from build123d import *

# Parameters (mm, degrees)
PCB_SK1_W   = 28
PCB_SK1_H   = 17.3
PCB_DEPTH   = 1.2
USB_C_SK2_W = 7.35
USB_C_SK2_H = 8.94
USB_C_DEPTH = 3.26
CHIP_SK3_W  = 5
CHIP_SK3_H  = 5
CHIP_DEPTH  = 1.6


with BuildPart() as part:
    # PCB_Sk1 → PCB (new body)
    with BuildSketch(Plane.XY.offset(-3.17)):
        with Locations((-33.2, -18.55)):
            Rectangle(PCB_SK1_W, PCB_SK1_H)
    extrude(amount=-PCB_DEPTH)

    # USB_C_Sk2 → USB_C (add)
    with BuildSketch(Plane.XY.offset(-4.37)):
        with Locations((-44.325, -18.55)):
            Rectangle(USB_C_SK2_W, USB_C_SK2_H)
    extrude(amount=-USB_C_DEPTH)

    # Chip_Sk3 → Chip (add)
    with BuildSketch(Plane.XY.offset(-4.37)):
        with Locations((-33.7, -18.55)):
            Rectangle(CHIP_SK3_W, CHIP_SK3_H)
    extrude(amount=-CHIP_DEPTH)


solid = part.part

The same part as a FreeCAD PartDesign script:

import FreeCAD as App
import Part
import Sketcher

V = App.Vector
Q = App.Units.Quantity


def add_polygon(sketch, points):
    """Adds a closed chain of lines whose ends are joined by coincident constraints."""
    first, n = sketch.GeometryCount, len(points)
    for a, b in zip(points, points[1:] + points[:1]):
        sketch.addGeometry(Part.LineSegment(App.Vector(*a, 0), App.Vector(*b, 0)), False)
    for i in range(n):
        sketch.addConstraint(Sketcher.Constraint("Coincident", first + i, 2, first + (i + 1) % n, 1))

doc = App.newDocument("Part")
params = doc.addObject("Spreadsheet::Sheet", "Params")
for row, (alias, value) in enumerate([
    ("sketch1_width", "28 mm"),
    ("sketch1_height", "17.3 mm"),
    ("pad1_length", "1.2 mm"),
    ("sketch2_width", "7.35 mm"),
    ("sketch2_height", "8.94 mm"),
    ("pad2_length", "3.26 mm"),
    ("sketch3_width", "5 mm"),
    ("pad3_length", "1.6 mm"),
], start=1):
    params.set(f"A{row}", alias)
    params.set(f"B{row}", "=" + value)
    params.setAlias(f"B{row}", alias)

body = doc.addObject("PartDesign::Body", "Body")

# Sketch on XY plane
sketch1 = doc.addObject("Sketcher::SketchObject", "Sketch")
body.addObject(sketch1)
sketch1.AttachmentSupport = (doc.XY_Plane, [""])
sketch1.MapMode = "FlatFace"
sketch1.AttachmentOffset = App.Placement(V(0, 0, -3.17), App.Rotation())
add_polygon(sketch1, [(-47.2, -9.9), (-47.2, -27.2), (-19.2, -27.2), (-19.2, -9.9)])  # lines 0-3
sketch1.addConstraint(Sketcher.Constraint("Vertical", 0))
sketch1.addConstraint(Sketcher.Constraint("Horizontal", 1))
sketch1.addConstraint(Sketcher.Constraint("Vertical", 2))
sketch1.addConstraint(Sketcher.Constraint("Horizontal", 3))
sketch1.addConstraint(Sketcher.Constraint("DistanceX", 1, 1, 1, 2, Q("28 mm")))
sketch1.addConstraint(Sketcher.Constraint("DistanceY", 0, 2, 0, 1, Q("17.3 mm")))
sketch1.addConstraint(Sketcher.Constraint("DistanceX", 0, 2, -1, 1, Q("47.2 mm")))
sketch1.addConstraint(Sketcher.Constraint("DistanceY", 0, 2, -1, 1, Q("27.2 mm")))
sketch1.setExpression("Constraints[8]", "Params.sketch1_width")
sketch1.setExpression("Constraints[9]", "Params.sketch1_height")
pad1 = doc.addObject("PartDesign::Pad", "Pad")
body.addObject(pad1)
pad1.Profile = sketch1
pad1.setExpression("Length", "Params.pad1_length")
pad1.Reversed = True

# Sketch on XY plane
sketch2 = doc.addObject("Sketcher::SketchObject", "Sketch001")
body.addObject(sketch2)
sketch2.AttachmentSupport = (doc.XY_Plane, [""])
sketch2.MapMode = "FlatFace"
sketch2.AttachmentOffset = App.Placement(V(0, 0, -4.37), App.Rotation())
add_polygon(sketch2, [(-48, -14.08), (-48, -23.02), (-40.65, -23.02), (-40.65, -14.08)])  # lines 0-3
sketch2.addConstraint(Sketcher.Constraint("Vertical", 0))
sketch2.addConstraint(Sketcher.Constraint("Horizontal", 1))
sketch2.addConstraint(Sketcher.Constraint("Vertical", 2))
sketch2.addConstraint(Sketcher.Constraint("Horizontal", 3))
sketch2.addConstraint(Sketcher.Constraint("DistanceX", 0, 2, -1, 1, Q("48 mm")))
sketch2.addConstraint(Sketcher.Constraint("DistanceX", 1, 1, 1, 2, Q("7.35 mm")))
sketch2.addConstraint(Sketcher.Constraint("DistanceY", 0, 2, 0, 1, Q("8.94 mm")))
sketch2.addConstraint(Sketcher.Constraint("DistanceY", 0, 2, -1, 1, Q("23.02 mm")))
sketch2.setExpression("Constraints[9]", "Params.sketch2_width")
sketch2.setExpression("Constraints[10]", "Params.sketch2_height")
pad2 = doc.addObject("PartDesign::Pad", "Pad001")
body.addObject(pad2)
pad2.Profile = sketch2
pad2.setExpression("Length", "Params.pad2_length")
pad2.Reversed = True

# Sketch on XY plane
sketch3 = doc.addObject("Sketcher::SketchObject", "Sketch002")
body.addObject(sketch3)
sketch3.AttachmentSupport = (doc.XY_Plane, [""])
sketch3.MapMode = "FlatFace"
sketch3.AttachmentOffset = App.Placement(V(0, 0, -4.37), App.Rotation())
add_polygon(sketch3, [(-36.2, -16.05), (-36.2, -21.05), (-31.2, -21.05), (-31.2, -16.05)])  # lines 0-3
sketch3.addConstraint(Sketcher.Constraint("Vertical", 0))
sketch3.addConstraint(Sketcher.Constraint("Horizontal", 1))
sketch3.addConstraint(Sketcher.Constraint("Vertical", 2))
sketch3.addConstraint(Sketcher.Constraint("Horizontal", 3))
sketch3.addConstraint(Sketcher.Constraint("Equal", 3, 0))
sketch3.addConstraint(Sketcher.Constraint("DistanceX", 1, 1, 1, 2, Q("5 mm")))
sketch3.addConstraint(Sketcher.Constraint("DistanceX", 0, 2, -1, 1, Q("36.2 mm")))
sketch3.addConstraint(Sketcher.Constraint("DistanceY", 0, 2, -1, 1, Q("21.05 mm")))
sketch3.setExpression("Constraints[9]", "Params.sketch3_width")
pad3 = doc.addObject("PartDesign::Pad", "Pad002")
body.addObject(pad3)
pad3.Profile = sketch3
pad3.setExpression("Length", "Params.pad3_length")
pad3.Reversed = True

doc.recompute()
